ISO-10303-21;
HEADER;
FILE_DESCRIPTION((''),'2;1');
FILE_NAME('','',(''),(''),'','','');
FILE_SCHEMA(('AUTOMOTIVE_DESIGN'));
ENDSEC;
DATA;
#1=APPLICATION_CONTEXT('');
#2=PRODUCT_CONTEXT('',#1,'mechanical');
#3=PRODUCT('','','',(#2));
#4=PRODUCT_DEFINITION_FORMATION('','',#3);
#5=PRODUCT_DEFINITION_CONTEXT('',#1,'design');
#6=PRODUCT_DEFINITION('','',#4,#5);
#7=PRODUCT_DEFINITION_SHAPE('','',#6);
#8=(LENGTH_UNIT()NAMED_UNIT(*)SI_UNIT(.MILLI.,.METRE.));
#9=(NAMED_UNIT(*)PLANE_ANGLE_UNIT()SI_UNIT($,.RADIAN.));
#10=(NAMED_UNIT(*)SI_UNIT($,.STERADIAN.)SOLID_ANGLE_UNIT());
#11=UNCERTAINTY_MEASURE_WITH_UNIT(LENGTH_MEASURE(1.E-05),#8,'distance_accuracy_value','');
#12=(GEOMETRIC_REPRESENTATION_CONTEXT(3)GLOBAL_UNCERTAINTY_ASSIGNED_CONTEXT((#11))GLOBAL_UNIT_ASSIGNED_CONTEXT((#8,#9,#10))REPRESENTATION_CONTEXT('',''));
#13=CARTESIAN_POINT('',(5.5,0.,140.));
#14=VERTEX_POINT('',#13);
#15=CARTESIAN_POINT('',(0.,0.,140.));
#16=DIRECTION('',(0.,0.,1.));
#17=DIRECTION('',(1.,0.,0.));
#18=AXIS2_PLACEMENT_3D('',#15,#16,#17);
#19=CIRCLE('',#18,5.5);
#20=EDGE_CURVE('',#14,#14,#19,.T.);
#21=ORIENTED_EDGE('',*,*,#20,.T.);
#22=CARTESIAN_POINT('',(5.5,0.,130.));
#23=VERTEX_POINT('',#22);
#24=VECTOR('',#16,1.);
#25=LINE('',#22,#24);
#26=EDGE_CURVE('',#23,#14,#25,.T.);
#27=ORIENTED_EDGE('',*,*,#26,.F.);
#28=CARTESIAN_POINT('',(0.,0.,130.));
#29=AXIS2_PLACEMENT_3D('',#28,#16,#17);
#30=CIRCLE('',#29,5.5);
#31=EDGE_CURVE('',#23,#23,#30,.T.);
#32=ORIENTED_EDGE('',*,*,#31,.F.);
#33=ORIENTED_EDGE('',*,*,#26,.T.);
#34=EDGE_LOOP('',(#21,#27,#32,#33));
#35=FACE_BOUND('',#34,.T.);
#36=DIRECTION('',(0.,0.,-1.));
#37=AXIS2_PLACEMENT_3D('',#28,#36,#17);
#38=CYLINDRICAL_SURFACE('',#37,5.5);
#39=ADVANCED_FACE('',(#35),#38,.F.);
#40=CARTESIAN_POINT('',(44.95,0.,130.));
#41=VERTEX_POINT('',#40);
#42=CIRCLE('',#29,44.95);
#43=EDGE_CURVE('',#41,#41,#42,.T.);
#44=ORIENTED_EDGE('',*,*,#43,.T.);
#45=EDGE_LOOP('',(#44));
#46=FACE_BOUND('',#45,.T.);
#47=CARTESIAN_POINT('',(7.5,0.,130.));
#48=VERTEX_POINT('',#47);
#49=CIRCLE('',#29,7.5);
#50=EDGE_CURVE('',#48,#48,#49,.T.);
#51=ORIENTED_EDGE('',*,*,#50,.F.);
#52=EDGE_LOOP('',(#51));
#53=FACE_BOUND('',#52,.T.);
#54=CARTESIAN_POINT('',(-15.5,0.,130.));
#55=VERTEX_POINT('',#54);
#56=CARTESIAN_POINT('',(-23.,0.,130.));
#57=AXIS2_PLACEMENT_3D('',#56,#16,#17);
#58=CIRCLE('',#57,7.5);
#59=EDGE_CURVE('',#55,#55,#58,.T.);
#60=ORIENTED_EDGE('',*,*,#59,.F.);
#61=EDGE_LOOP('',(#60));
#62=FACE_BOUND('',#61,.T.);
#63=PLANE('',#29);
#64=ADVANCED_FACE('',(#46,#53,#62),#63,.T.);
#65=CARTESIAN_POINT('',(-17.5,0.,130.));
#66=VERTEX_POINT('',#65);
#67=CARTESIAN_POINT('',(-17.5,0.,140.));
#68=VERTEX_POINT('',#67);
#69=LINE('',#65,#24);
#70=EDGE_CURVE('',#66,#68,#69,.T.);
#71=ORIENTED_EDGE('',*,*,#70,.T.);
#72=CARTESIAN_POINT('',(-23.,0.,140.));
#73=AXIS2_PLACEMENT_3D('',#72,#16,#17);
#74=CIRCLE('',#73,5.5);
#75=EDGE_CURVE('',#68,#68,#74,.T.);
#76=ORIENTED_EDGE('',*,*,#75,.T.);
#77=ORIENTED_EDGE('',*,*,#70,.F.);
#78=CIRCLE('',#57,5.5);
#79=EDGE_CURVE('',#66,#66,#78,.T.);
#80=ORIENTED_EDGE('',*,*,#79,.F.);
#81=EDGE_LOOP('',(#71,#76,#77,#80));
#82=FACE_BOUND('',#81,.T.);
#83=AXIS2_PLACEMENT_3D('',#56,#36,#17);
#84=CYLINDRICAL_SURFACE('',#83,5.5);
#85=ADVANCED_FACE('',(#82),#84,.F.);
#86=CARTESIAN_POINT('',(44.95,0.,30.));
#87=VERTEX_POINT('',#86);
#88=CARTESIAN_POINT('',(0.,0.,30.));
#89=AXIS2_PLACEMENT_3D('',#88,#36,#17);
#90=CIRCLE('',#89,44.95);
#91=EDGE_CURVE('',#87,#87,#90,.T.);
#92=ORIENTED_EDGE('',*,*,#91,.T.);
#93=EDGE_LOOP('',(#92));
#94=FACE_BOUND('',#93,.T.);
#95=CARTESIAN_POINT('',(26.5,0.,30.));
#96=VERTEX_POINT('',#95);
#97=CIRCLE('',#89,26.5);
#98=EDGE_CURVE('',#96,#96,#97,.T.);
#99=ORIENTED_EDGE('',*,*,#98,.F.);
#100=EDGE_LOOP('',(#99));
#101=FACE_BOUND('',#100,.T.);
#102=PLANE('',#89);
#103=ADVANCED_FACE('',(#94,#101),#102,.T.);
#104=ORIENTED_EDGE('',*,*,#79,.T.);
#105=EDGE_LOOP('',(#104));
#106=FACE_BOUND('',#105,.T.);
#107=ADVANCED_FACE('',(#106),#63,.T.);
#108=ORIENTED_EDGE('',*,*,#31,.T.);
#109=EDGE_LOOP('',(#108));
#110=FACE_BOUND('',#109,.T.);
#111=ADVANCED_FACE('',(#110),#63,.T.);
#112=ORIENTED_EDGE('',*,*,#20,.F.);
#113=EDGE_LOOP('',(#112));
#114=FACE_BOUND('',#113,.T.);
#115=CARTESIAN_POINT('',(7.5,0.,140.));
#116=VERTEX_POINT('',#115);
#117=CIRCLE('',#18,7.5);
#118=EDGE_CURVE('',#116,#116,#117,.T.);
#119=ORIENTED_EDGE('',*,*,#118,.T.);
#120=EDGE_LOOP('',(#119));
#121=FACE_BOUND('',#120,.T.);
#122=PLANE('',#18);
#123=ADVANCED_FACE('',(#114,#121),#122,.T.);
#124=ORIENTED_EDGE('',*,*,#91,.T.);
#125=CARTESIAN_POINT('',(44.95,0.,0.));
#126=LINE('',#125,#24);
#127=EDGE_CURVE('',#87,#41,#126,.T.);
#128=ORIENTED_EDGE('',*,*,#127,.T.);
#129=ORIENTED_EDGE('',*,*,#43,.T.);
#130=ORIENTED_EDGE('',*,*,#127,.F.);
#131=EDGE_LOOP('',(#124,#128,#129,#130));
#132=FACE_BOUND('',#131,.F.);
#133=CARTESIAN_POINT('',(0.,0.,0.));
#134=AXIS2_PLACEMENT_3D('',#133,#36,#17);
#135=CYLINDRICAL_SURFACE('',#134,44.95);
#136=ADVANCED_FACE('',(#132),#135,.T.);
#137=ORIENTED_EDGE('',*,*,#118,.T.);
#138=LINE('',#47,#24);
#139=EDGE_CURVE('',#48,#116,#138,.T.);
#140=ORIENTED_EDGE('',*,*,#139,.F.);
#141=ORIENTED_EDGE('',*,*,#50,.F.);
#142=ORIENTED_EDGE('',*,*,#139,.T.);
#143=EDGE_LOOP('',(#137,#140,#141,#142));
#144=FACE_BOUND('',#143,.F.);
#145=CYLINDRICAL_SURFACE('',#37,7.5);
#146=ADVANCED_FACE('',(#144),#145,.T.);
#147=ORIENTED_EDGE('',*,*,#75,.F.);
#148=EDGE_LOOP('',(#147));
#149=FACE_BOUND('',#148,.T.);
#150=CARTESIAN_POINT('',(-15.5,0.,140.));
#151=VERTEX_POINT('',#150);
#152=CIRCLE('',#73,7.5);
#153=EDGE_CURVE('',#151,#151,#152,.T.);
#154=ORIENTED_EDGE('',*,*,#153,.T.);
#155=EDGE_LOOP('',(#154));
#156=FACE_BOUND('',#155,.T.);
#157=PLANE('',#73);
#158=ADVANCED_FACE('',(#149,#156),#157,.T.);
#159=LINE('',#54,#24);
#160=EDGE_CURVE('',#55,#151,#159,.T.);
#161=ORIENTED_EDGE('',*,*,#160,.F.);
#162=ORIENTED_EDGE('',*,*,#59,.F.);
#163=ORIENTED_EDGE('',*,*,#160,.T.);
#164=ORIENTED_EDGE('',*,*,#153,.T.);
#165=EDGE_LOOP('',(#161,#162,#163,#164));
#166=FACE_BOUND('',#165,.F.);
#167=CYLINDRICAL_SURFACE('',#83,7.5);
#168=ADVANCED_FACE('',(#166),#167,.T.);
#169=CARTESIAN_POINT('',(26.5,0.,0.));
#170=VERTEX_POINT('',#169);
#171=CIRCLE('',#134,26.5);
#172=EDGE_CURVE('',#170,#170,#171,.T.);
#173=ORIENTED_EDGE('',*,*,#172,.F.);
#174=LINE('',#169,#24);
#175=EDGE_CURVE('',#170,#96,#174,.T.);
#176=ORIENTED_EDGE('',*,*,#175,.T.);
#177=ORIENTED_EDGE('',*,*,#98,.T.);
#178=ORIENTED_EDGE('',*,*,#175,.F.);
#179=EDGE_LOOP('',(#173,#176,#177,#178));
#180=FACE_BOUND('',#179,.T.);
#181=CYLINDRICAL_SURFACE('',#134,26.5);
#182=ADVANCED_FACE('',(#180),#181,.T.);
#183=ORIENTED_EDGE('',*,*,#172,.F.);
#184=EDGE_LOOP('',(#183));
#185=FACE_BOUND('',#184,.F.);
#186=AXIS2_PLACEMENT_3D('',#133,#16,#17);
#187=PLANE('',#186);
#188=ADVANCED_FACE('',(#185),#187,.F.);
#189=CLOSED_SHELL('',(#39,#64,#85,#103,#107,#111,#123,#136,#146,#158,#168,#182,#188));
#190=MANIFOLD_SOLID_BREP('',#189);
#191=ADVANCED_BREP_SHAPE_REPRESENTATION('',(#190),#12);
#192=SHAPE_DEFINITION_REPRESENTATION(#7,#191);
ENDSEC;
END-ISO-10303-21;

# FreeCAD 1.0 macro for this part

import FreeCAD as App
import Part
import Sketcher

doc = App.newDocument("Part")
body = doc.addObject("PartDesign::Body", "Body")

# Sketch on XY plane
sketch1 = body.newObject("Sketcher::SketchObject", "Sketch")
sketch1.AttachmentSupport = (doc.getObject("XY_Plane"), [""])
sketch1.MapMode = "FlatFace"
sketch1.addGeometry(Part.Circle(App.Vector(0, 0, 0), App.Vector(0, 0, 1), 45), False)
sketch1.addConstraint(Sketcher.Constraint("Coincident", 0, 3, -1, 1))
sketch1.addConstraint(Sketcher.Constraint("Diameter", 0, 89.9))
pad1 = body.newObject("PartDesign::Pad", "Pad")
pad1.Profile = sketch1
pad1.Length = 130

# Sketch on XY plane
sketch2 = body.newObject("Sketcher::SketchObject", "Sketch001")
sketch2.AttachmentSupport = (doc.getObject("XY_Plane"), [""])
sketch2.MapMode = "FlatFace"
sketch2.AttachmentOffset = App.Placement(App.Vector(0, 0, 130), App.Rotation())
sketch2.addGeometry(Part.Circle(App.Vector(0, 0, 0), App.Vector(0, 0, 1), 8), False)
sketch2.addGeometry(Part.Circle(App.Vector(0, 0, 0), App.Vector(0, 0, 1), 6), False)
sketch2.addGeometry(Part.Circle(App.Vector(-23, 0, 0), App.Vector(0, 0, 1), 8), False)
sketch2.addGeometry(Part.Circle(App.Vector(-23, 0, 0), App.Vector(0, 0, 1), 6), False)
sketch2.addConstraint(Sketcher.Constraint("Coincident", 0, 3, -1, 1))
sketch2.addConstraint(Sketcher.Constraint("Coincident", 1, 3, -1, 1))
sketch2.addConstraint(Sketcher.Constraint("Coincident", 3, 3, 2, 3))
sketch2.addConstraint(Sketcher.Constraint("Equal", 0, 2))
sketch2.addConstraint(Sketcher.Constraint("Equal", 1, 3))
sketch2.addConstraint(Sketcher.Constraint("PointOnObject", 2, 3, -1))
sketch2.addConstraint(Sketcher.Constraint("Diameter", 0, 15.0))
sketch2.addConstraint(Sketcher.Constraint("Diameter", 1, 11.0))
sketch2.addConstraint(Sketcher.Constraint("DistanceX", 2, 3, -1, 1, 23.0))
pad2 = body.newObject("PartDesign::Pad", "Pad001")
pad2.Profile = sketch2
pad2.Length = 10

# Sketch on XY plane
sketch3 = body.newObject("Sketcher::SketchObject", "Sketch002")
sketch3.AttachmentSupport = (doc.getObject("XY_Plane"), [""])
sketch3.MapMode = "FlatFace"
sketch3.addGeometry(Part.Circle(App.Vector(0, 0, 0), App.Vector(0, 0, 1), 45), False)
sketch3.addGeometry(Part.Circle(App.Vector(0, 0, 0), App.Vector(0, 0, 1), 26), False)
sketch3.addConstraint(Sketcher.Constraint("Coincident", 0, 3, -1, 1))
sketch3.addConstraint(Sketcher.Constraint("Coincident", 1, 3, -1, 1))
sketch3.addConstraint(Sketcher.Constraint("Diameter", 1, 53.0))
sketch3.addConstraint(Sketcher.Constraint("Diameter", 0, 89.9))
pocket1 = body.newObject("PartDesign::Pocket", "Pocket")
pocket1.Profile = sketch3
pocket1.Length = 30
pocket1.Reversed = True

doc.recompute()
